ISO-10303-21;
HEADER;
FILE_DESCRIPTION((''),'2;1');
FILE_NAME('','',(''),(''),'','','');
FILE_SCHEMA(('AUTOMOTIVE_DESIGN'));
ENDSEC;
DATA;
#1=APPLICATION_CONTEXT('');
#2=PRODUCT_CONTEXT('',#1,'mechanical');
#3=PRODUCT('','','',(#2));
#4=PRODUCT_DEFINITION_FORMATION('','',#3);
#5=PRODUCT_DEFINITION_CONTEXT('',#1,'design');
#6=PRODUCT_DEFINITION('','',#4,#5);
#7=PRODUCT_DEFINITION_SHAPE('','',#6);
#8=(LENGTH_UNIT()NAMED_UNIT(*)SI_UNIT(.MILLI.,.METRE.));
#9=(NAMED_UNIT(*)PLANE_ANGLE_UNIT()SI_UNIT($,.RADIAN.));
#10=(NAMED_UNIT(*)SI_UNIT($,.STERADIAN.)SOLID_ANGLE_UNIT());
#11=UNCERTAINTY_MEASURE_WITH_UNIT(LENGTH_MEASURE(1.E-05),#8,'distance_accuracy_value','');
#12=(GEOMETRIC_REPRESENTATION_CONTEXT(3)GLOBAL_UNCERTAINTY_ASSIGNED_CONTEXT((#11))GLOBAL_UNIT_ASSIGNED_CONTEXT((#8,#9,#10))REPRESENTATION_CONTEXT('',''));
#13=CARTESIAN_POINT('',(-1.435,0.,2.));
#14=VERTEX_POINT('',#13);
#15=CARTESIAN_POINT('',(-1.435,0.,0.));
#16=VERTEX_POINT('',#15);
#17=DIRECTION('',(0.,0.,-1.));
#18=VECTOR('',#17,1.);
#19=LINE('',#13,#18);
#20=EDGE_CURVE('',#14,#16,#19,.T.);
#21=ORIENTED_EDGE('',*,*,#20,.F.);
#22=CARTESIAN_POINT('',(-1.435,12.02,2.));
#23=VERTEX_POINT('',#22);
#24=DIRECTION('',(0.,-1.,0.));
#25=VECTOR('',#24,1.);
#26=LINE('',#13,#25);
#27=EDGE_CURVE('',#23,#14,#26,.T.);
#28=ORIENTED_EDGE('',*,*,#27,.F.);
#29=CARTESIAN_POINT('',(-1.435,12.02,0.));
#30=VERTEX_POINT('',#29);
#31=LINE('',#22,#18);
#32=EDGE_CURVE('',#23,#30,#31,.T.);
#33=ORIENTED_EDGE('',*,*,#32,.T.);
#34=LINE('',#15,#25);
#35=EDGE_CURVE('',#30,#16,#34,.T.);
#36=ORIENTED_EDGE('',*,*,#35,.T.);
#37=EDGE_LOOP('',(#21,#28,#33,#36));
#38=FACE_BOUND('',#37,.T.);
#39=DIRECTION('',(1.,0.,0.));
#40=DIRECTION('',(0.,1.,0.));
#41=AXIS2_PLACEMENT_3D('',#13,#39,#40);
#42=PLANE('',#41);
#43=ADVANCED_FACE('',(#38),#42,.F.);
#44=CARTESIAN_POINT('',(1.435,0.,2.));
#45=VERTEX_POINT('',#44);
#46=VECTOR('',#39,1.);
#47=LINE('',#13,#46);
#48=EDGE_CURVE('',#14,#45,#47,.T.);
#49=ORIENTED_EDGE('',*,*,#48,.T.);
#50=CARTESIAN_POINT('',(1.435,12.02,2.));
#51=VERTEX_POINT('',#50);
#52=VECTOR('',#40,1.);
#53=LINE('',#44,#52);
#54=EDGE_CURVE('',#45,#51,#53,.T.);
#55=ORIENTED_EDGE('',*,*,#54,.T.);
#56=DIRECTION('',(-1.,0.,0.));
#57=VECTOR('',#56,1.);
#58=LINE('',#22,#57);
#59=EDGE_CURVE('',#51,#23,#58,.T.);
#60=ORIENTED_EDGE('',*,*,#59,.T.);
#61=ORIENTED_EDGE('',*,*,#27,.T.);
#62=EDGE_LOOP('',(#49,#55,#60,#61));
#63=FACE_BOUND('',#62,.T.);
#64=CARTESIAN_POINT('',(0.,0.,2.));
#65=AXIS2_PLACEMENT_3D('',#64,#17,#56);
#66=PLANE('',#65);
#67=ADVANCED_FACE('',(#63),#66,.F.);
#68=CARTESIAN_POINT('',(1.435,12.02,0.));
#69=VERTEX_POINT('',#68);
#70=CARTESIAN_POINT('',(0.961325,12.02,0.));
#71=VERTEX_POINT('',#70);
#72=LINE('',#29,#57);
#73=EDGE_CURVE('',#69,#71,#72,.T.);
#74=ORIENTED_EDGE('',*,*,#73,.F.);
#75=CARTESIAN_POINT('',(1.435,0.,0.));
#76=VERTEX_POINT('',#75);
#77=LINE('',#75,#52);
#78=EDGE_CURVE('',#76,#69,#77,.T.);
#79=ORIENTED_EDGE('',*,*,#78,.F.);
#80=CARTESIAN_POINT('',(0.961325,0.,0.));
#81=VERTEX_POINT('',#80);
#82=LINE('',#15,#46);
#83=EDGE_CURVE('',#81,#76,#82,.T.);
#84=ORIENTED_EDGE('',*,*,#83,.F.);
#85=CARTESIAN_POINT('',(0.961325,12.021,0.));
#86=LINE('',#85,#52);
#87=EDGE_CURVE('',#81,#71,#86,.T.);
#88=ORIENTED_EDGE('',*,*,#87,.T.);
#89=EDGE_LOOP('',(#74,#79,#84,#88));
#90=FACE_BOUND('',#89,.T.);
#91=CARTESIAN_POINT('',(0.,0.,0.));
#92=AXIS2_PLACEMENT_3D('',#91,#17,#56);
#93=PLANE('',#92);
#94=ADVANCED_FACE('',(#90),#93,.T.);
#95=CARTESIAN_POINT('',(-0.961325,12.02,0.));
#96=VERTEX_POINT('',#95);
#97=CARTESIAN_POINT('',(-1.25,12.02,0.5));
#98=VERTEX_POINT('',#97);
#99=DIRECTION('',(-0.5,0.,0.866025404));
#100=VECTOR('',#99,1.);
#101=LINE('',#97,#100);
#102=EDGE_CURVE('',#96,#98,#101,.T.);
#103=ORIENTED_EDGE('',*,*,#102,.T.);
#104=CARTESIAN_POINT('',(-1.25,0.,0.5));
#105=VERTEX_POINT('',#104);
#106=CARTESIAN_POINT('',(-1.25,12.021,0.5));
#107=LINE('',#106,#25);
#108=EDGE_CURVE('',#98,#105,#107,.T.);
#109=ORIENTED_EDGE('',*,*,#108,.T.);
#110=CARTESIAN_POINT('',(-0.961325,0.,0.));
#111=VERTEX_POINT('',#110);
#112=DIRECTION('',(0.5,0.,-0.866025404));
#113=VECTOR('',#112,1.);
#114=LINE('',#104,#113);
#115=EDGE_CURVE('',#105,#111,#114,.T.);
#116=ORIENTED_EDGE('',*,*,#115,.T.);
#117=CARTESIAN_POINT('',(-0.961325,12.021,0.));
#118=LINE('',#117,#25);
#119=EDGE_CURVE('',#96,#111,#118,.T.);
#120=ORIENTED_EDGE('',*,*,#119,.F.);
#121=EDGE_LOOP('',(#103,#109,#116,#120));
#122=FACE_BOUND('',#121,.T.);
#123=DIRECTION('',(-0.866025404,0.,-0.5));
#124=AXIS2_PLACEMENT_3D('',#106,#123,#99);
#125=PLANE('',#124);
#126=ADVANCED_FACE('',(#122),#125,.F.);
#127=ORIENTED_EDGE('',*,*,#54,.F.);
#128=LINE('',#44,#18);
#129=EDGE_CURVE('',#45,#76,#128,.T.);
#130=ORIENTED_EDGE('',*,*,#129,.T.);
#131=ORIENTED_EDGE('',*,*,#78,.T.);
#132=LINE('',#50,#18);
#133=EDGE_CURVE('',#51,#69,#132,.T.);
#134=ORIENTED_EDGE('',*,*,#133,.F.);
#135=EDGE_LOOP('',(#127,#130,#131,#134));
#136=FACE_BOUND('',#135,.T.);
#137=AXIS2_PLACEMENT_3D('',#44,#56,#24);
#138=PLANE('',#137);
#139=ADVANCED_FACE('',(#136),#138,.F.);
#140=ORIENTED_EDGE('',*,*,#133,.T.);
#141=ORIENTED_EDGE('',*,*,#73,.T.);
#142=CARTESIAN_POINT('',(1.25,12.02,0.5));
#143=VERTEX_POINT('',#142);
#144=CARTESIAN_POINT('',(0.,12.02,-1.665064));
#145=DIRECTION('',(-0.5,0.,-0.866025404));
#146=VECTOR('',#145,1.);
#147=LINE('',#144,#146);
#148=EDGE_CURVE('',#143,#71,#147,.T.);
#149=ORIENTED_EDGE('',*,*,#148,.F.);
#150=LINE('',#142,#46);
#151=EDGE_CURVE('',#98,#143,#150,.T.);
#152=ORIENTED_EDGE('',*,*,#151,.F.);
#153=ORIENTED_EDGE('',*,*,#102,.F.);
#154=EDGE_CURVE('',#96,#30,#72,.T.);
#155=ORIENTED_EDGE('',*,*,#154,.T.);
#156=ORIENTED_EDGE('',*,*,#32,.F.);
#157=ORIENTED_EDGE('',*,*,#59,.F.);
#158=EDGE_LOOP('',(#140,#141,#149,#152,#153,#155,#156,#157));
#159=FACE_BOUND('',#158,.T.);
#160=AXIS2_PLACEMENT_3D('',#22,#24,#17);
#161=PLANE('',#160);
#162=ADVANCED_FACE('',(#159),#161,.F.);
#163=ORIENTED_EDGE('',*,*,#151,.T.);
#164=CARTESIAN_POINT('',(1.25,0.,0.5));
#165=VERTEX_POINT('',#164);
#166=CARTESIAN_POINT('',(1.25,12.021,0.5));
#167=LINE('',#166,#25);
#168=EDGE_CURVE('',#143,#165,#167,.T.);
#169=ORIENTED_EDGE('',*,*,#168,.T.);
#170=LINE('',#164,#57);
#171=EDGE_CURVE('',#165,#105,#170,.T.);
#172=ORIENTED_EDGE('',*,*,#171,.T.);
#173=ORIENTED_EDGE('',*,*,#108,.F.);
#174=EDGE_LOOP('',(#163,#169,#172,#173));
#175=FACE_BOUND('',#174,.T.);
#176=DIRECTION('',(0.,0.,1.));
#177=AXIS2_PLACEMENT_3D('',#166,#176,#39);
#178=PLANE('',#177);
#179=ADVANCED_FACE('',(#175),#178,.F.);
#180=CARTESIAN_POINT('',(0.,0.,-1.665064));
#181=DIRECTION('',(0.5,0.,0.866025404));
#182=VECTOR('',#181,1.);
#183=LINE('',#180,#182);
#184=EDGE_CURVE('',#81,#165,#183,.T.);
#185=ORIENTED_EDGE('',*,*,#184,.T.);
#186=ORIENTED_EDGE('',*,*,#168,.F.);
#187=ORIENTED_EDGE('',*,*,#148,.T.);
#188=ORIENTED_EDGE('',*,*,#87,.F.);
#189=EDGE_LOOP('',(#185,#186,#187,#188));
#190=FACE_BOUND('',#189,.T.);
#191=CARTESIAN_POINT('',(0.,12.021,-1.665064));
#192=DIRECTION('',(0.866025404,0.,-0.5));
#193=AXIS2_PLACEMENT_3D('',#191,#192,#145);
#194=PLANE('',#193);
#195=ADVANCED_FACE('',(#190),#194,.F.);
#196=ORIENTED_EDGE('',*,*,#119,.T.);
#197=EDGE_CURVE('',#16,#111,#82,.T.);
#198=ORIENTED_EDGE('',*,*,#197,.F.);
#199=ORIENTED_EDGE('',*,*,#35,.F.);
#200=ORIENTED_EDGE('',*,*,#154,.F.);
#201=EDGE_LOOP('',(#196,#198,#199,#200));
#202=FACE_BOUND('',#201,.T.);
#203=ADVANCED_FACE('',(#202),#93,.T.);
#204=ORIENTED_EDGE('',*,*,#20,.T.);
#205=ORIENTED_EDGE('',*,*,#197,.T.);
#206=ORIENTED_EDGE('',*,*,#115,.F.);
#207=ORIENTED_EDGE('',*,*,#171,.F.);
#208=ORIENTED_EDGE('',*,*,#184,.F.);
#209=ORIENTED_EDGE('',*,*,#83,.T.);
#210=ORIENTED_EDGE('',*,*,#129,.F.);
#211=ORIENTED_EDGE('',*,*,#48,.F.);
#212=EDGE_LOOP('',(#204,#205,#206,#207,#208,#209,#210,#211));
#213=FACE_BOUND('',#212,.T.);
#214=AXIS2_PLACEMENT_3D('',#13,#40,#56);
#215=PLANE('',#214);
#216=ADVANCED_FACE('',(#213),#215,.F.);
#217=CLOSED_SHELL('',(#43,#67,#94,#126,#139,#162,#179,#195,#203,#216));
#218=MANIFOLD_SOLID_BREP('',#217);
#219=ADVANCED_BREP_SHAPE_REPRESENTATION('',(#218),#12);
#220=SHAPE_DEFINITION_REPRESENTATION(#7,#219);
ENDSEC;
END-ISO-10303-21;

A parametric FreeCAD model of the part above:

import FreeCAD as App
import Part
import Sketcher
Q = App.Units.Quantity


def add_polygon(sketch, points):
    """Adds a closed chain of lines whose ends are joined by coincident constraints."""
    first, n = sketch.GeometryCount, len(points)
    for a, b in zip(points, points[1:] + points[:1]):
        sketch.addGeometry(Part.LineSegment(App.Vector(*a, 0), App.Vector(*b, 0)), False)
    for i in range(n):
        sketch.addConstraint(Sketcher.Constraint("Coincident", first + i, 2, first + (i + 1) % n, 1))

doc = App.newDocument("Part")
body = doc.addObject("PartDesign::Body", "Body")

sketch1 = body.newObject("Sketcher::SketchObject", "Sketch")
sketch1.AttachmentSupport = (doc.getObject("XY_Plane"), [""])
sketch1.MapMode = "FlatFace"
add_polygon(sketch1, [(-1.4, 12), (-1.4, 0), (1.4, 0), (1.4, 12)])
sketch1.addConstraint([
    Sketcher.Constraint("Vertical", 0),
    Sketcher.Constraint("Horizontal", 1),
    Sketcher.Constraint("Vertical", 2),
    Sketcher.Constraint("Horizontal", 3),
    Sketcher.Constraint("Symmetric", 0, 2, 1, 2, -1, 1),
    Sketcher.Constraint("DistanceX", 1, 1, 1, 2, Q("2.87 mm")),
    Sketcher.Constraint("DistanceY", 0, 2, 0, 1, Q("12.02 mm")),
])
pad1 = body.newObject("PartDesign::Pad", "Pad")
pad1.Profile = sketch1
pad1.Length = 2

sketch2 = body.newObject("Sketcher::SketchObject", "Sketch001")
sketch2.AttachmentSupport = (doc.getObject("XZ_Plane"), [""])
sketch2.MapMode = "FlatFace"
add_polygon(sketch2, [(0, -1.7), (1.2, 0.5), (-1.2, 0.5)])
sketch2.addConstraint([
    Sketcher.Constraint("Horizontal", 1),
    Sketcher.Constraint("PointOnObject", 2, 2, -2),
    Sketcher.Constraint("Equal", 0, 2),
    Sketcher.Constraint("Angle", 0, Q("60 deg")),
    Sketcher.Constraint("DistanceX", 1, 2, 1, 1, Q("2.5 mm")),
    Sketcher.Constraint("DistanceY", -1, 1, 0, 2, Q("0.5 mm")),
])
pocket1 = body.newObject("PartDesign::Pocket", "Pocket")
pocket1.Profile = sketch2
pocket1.Length = 12.02

doc.recompute()
